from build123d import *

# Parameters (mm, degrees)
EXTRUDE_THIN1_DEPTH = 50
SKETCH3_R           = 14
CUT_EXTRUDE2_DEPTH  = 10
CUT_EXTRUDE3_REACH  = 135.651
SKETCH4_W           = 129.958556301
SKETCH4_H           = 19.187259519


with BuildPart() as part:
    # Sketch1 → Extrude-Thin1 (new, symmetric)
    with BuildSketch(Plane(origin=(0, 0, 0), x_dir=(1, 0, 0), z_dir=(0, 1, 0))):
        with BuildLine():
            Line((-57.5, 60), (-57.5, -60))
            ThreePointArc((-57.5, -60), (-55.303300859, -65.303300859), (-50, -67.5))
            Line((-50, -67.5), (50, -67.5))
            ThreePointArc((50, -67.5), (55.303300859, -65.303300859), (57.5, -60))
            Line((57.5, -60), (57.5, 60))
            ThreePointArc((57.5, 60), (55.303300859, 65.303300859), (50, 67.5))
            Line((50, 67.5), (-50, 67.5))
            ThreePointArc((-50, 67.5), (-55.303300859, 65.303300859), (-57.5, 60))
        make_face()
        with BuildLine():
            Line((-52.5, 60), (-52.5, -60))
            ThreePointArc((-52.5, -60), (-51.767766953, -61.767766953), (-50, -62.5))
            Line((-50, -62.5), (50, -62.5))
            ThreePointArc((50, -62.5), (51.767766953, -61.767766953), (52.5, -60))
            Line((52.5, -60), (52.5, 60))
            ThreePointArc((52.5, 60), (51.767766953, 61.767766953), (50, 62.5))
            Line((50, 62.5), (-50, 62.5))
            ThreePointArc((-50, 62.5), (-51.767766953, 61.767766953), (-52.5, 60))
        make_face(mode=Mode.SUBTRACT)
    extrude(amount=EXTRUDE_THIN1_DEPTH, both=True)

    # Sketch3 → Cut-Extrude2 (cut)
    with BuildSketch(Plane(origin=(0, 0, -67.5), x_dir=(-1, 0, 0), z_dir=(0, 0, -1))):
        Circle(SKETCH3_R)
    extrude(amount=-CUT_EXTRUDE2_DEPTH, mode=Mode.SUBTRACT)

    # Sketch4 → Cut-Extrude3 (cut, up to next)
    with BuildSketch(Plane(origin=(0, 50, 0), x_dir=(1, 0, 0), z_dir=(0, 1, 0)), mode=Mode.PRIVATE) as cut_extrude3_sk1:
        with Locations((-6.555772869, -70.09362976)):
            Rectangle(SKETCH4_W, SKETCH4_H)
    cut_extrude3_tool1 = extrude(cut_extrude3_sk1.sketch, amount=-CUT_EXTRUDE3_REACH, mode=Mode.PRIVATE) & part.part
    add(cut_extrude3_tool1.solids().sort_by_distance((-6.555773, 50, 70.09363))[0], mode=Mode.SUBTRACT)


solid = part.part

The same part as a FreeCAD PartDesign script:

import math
import FreeCAD as App
import Part
import Sketcher
from FreeCAD import Vector
Q = App.Units.Quantity


def add_polygon(sketch, points):
    """Adds a closed chain of lines whose ends are joined by coincident constraints."""
    first, n = sketch.GeometryCount, len(points)
    for a, b in zip(points, points[1:] + points[:1]):
        sketch.addGeometry(Part.LineSegment(App.Vector(*a, 0), App.Vector(*b, 0)), False)
    for i in range(n):
        sketch.addConstraint(Sketcher.Constraint("Coincident", first + i, 2, first + (i + 1) % n, 1))

doc = App.newDocument("Part")
params = doc.addObject("Spreadsheet::Sheet", "Params")
for row, (alias, value) in enumerate([
    ("sketch1_radius", "7.5 mm"),
    ("sketch1_radius2", "2.5 mm"),
    ("sketch1_width", "100 mm"),
    ("sketch1_height", "120 mm"),
    ("pad1_length", "100 mm"),
    ("sketch2_diameter", "28 mm"),
    ("pocket1_length", "10 mm"),
    ("pocket2_length", "100 mm"),
], start=1):
    params.set(f"A{row}", alias)
    params.set(f"B{row}", "=" + value)
    params.setAlias(f"B{row}", alias)

body = doc.addObject("PartDesign::Body", "Body")

# Sketch on XZ plane
sketch1 = body.newObject("Sketcher::SketchObject", "Sketch")
sketch1.AttachmentSupport = (doc.getObject("XZ_Plane"), [""])
sketch1.MapMode = "FlatFace"
sketch1.addGeometry([
    Part.LineSegment(Vector(-57.5, -60, 0), Vector(-57.5, 60, 0)),  # 0
    Part.ArcOfCircle(Part.Circle(Vector(-50, 60, 0), Vector(0, 0, 1), 7.5), math.radians(90), math.radians(180)),  # 1
    Part.LineSegment(Vector(-50, 67.5, 0), Vector(50, 67.5, 0)),  # 2
    Part.ArcOfCircle(Part.Circle(Vector(50, 60, 0), Vector(0, 0, 1), 7.5), math.radians(0), math.radians(90)),  # 3
    Part.LineSegment(Vector(57.5, 60, 0), Vector(57.5, -60, 0)),  # 4
    Part.ArcOfCircle(Part.Circle(Vector(50, -60, 0), Vector(0, 0, 1), 7.5), math.radians(-90), math.radians(0)),  # 5
    Part.LineSegment(Vector(50, -67.5, 0), Vector(-50, -67.5, 0)),  # 6
    Part.ArcOfCircle(Part.Circle(Vector(-50, -60, 0), Vector(0, 0, 1), 7.5), math.radians(180), math.radians(270)),  # 7
    Part.LineSegment(Vector(-52.5, 60, 0), Vector(-52.5, -60, 0)),  # 8
    Part.ArcOfCircle(Part.Circle(Vector(-50, -60, 0), Vector(0, 0, 1), 2.5), math.radians(180), math.radians(270)),  # 9
    Part.LineSegment(Vector(-50, -62.5, 0), Vector(50, -62.5, 0)),  # 10
    Part.ArcOfCircle(Part.Circle(Vector(50, -60, 0), Vector(0, 0, 1), 2.5), math.radians(-90), math.radians(0)),  # 11
    Part.LineSegment(Vector(52.5, -60, 0), Vector(52.5, 60, 0)),  # 12
    Part.ArcOfCircle(Part.Circle(Vector(50, 60, 0), Vector(0, 0, 1), 2.5), math.radians(0), math.radians(90)),  # 13
    Part.LineSegment(Vector(50, 62.5, 0), Vector(-50, 62.5, 0)),  # 14
    Part.ArcOfCircle(Part.Circle(Vector(-50, 60, 0), Vector(0, 0, 1), 2.5), math.radians(90), math.radians(180)),  # 15
], False)
sketch1.addConstraint([
    Sketcher.Constraint("Tangent", 0, 2, 1, 2),
    Sketcher.Constraint("Tangent", 1, 1, 2, 1),
    Sketcher.Constraint("Tangent", 2, 2, 3, 2),
    Sketcher.Constraint("Tangent", 3, 1, 4, 1),
    Sketcher.Constraint("Tangent", 4, 2, 5, 2),
    Sketcher.Constraint("Tangent", 5, 1, 6, 1),
    Sketcher.Constraint("Tangent", 6, 2, 7, 2),
    Sketcher.Constraint("Tangent", 7, 1, 0, 1),
    Sketcher.Constraint("Tangent", 8, 2, 9, 1),
    Sketcher.Constraint("Tangent", 9, 2, 10, 1),
    Sketcher.Constraint("Tangent", 10, 2, 11, 1),
    Sketcher.Constraint("Tangent", 11, 2, 12, 1),
    Sketcher.Constraint("Tangent", 12, 2, 13, 1),
    Sketcher.Constraint("Tangent", 13, 2, 14, 1),
    Sketcher.Constraint("Tangent", 14, 2, 15, 1),
    Sketcher.Constraint("Tangent", 15, 2, 8, 1),
    Sketcher.Constraint("Vertical", 0),
    Sketcher.Constraint("Horizontal", 2),
    Sketcher.Constraint("Vertical", 4),
    Sketcher.Constraint("Horizontal", 6),
    Sketcher.Constraint("Vertical", 8),
    Sketcher.Constraint("Horizontal", 10),
    Sketcher.Constraint("Vertical", 12),
    Sketcher.Constraint("Horizontal", 14),
    Sketcher.Constraint("Coincident", 9, 3, 7, 3),
    Sketcher.Constraint("Coincident", 11, 3, 5, 3),
    Sketcher.Constraint("Coincident", 13, 3, 3, 3),
    Sketcher.Constraint("Equal", 1, 3),
    Sketcher.Constraint("Equal", 3, 5),
    Sketcher.Constraint("Equal", 5, 7),
    Sketcher.Constraint("Equal", 13, 15),
    Sketcher.Constraint("Symmetric", 1, 3, 5, 3, -1, 1),
    Sketcher.Constraint("Radius", 1, Q("7.5 mm")),
    Sketcher.Constraint("Radius", 9, Q("2.5 mm")),
    Sketcher.Constraint("DistanceX", 2, 1, 2, 2, Q("100 mm")),
    Sketcher.Constraint("DistanceY", 0, 1, 0, 2, Q("120 mm")),
])
sketch1.setExpression("Constraints[32]", "Params.sketch1_radius")
sketch1.setExpression("Constraints[33]", "Params.sketch1_radius2")
sketch1.setExpression("Constraints[34]", "Params.sketch1_width")
sketch1.setExpression("Constraints[35]", "Params.sketch1_height")
pad1 = body.newObject("PartDesign::Pad", "Pad")
pad1.Profile = sketch1
pad1.setExpression("Length", "Params.pad1_length")
pad1.Midplane = True

# Sketch on XY plane
sketch2 = body.newObject("Sketcher::SketchObject", "Sketch001")
sketch2.AttachmentSupport = (doc.getObject("XY_Plane"), [""])
sketch2.MapMode = "FlatFace"
sketch2.AttachmentOffset = App.Placement(Vector(0, 0, -67.5), App.Rotation())
sketch2.addGeometry(Part.Circle(Vector(0, 0, 0), Vector(0, 0, 1), 14), False)
sketch2.addConstraint([
    Sketcher.Constraint("Coincident", 0, 3, -1, 1),
    Sketcher.Constraint("Diameter", 0, Q("28 mm")),
])
sketch2.setExpression("Constraints[1]", "Params.sketch2_diameter")
pocket1 = body.newObject("PartDesign::Pocket", "Pocket")
pocket1.Profile = sketch2
pocket1.setExpression("Length", "Params.pocket1_length")
pocket1.Reversed = True

# Sketch on XZ plane
sketch3 = body.newObject("Sketcher::SketchObject", "Sketch002")
sketch3.AttachmentSupport = (doc.getObject("XZ_Plane"), [""])
sketch3.MapMode = "FlatFace"
sketch3.AttachmentOffset = App.Placement(Vector(0, 0, -50), App.Rotation())
add_polygon(sketch3, [(-72, 60), (-72, 80), (58, 80), (58, 60)])  # lines 0-3
sketch3.addConstraint([
    Sketcher.Constraint("Vertical", 0),
    Sketcher.Constraint("Horizontal", 1),
    Sketcher.Constraint("Vertical", 2),
    Sketcher.Constraint("Horizontal", 3),
    Sketcher.Constraint("DistanceY", -1, 1, 2, 2, Q("60.5 mm")),
    Sketcher.Constraint("DistanceY", 0, 1, 0, 2, Q("19.18726 mm")),
    Sketcher.Constraint("DistanceX", 1, 1, 1, 2, Q("129.958556 mm")),
    Sketcher.Constraint("DistanceX", 0, 2, -1, 1, Q("71.535051 mm")),
])
pocket2 = body.newObject("PartDesign::Pocket", "Pocket001")
pocket2.Profile = sketch3
pocket2.setExpression("Length", "Params.pocket2_length")
pocket2.Reversed = True

doc.recompute()
